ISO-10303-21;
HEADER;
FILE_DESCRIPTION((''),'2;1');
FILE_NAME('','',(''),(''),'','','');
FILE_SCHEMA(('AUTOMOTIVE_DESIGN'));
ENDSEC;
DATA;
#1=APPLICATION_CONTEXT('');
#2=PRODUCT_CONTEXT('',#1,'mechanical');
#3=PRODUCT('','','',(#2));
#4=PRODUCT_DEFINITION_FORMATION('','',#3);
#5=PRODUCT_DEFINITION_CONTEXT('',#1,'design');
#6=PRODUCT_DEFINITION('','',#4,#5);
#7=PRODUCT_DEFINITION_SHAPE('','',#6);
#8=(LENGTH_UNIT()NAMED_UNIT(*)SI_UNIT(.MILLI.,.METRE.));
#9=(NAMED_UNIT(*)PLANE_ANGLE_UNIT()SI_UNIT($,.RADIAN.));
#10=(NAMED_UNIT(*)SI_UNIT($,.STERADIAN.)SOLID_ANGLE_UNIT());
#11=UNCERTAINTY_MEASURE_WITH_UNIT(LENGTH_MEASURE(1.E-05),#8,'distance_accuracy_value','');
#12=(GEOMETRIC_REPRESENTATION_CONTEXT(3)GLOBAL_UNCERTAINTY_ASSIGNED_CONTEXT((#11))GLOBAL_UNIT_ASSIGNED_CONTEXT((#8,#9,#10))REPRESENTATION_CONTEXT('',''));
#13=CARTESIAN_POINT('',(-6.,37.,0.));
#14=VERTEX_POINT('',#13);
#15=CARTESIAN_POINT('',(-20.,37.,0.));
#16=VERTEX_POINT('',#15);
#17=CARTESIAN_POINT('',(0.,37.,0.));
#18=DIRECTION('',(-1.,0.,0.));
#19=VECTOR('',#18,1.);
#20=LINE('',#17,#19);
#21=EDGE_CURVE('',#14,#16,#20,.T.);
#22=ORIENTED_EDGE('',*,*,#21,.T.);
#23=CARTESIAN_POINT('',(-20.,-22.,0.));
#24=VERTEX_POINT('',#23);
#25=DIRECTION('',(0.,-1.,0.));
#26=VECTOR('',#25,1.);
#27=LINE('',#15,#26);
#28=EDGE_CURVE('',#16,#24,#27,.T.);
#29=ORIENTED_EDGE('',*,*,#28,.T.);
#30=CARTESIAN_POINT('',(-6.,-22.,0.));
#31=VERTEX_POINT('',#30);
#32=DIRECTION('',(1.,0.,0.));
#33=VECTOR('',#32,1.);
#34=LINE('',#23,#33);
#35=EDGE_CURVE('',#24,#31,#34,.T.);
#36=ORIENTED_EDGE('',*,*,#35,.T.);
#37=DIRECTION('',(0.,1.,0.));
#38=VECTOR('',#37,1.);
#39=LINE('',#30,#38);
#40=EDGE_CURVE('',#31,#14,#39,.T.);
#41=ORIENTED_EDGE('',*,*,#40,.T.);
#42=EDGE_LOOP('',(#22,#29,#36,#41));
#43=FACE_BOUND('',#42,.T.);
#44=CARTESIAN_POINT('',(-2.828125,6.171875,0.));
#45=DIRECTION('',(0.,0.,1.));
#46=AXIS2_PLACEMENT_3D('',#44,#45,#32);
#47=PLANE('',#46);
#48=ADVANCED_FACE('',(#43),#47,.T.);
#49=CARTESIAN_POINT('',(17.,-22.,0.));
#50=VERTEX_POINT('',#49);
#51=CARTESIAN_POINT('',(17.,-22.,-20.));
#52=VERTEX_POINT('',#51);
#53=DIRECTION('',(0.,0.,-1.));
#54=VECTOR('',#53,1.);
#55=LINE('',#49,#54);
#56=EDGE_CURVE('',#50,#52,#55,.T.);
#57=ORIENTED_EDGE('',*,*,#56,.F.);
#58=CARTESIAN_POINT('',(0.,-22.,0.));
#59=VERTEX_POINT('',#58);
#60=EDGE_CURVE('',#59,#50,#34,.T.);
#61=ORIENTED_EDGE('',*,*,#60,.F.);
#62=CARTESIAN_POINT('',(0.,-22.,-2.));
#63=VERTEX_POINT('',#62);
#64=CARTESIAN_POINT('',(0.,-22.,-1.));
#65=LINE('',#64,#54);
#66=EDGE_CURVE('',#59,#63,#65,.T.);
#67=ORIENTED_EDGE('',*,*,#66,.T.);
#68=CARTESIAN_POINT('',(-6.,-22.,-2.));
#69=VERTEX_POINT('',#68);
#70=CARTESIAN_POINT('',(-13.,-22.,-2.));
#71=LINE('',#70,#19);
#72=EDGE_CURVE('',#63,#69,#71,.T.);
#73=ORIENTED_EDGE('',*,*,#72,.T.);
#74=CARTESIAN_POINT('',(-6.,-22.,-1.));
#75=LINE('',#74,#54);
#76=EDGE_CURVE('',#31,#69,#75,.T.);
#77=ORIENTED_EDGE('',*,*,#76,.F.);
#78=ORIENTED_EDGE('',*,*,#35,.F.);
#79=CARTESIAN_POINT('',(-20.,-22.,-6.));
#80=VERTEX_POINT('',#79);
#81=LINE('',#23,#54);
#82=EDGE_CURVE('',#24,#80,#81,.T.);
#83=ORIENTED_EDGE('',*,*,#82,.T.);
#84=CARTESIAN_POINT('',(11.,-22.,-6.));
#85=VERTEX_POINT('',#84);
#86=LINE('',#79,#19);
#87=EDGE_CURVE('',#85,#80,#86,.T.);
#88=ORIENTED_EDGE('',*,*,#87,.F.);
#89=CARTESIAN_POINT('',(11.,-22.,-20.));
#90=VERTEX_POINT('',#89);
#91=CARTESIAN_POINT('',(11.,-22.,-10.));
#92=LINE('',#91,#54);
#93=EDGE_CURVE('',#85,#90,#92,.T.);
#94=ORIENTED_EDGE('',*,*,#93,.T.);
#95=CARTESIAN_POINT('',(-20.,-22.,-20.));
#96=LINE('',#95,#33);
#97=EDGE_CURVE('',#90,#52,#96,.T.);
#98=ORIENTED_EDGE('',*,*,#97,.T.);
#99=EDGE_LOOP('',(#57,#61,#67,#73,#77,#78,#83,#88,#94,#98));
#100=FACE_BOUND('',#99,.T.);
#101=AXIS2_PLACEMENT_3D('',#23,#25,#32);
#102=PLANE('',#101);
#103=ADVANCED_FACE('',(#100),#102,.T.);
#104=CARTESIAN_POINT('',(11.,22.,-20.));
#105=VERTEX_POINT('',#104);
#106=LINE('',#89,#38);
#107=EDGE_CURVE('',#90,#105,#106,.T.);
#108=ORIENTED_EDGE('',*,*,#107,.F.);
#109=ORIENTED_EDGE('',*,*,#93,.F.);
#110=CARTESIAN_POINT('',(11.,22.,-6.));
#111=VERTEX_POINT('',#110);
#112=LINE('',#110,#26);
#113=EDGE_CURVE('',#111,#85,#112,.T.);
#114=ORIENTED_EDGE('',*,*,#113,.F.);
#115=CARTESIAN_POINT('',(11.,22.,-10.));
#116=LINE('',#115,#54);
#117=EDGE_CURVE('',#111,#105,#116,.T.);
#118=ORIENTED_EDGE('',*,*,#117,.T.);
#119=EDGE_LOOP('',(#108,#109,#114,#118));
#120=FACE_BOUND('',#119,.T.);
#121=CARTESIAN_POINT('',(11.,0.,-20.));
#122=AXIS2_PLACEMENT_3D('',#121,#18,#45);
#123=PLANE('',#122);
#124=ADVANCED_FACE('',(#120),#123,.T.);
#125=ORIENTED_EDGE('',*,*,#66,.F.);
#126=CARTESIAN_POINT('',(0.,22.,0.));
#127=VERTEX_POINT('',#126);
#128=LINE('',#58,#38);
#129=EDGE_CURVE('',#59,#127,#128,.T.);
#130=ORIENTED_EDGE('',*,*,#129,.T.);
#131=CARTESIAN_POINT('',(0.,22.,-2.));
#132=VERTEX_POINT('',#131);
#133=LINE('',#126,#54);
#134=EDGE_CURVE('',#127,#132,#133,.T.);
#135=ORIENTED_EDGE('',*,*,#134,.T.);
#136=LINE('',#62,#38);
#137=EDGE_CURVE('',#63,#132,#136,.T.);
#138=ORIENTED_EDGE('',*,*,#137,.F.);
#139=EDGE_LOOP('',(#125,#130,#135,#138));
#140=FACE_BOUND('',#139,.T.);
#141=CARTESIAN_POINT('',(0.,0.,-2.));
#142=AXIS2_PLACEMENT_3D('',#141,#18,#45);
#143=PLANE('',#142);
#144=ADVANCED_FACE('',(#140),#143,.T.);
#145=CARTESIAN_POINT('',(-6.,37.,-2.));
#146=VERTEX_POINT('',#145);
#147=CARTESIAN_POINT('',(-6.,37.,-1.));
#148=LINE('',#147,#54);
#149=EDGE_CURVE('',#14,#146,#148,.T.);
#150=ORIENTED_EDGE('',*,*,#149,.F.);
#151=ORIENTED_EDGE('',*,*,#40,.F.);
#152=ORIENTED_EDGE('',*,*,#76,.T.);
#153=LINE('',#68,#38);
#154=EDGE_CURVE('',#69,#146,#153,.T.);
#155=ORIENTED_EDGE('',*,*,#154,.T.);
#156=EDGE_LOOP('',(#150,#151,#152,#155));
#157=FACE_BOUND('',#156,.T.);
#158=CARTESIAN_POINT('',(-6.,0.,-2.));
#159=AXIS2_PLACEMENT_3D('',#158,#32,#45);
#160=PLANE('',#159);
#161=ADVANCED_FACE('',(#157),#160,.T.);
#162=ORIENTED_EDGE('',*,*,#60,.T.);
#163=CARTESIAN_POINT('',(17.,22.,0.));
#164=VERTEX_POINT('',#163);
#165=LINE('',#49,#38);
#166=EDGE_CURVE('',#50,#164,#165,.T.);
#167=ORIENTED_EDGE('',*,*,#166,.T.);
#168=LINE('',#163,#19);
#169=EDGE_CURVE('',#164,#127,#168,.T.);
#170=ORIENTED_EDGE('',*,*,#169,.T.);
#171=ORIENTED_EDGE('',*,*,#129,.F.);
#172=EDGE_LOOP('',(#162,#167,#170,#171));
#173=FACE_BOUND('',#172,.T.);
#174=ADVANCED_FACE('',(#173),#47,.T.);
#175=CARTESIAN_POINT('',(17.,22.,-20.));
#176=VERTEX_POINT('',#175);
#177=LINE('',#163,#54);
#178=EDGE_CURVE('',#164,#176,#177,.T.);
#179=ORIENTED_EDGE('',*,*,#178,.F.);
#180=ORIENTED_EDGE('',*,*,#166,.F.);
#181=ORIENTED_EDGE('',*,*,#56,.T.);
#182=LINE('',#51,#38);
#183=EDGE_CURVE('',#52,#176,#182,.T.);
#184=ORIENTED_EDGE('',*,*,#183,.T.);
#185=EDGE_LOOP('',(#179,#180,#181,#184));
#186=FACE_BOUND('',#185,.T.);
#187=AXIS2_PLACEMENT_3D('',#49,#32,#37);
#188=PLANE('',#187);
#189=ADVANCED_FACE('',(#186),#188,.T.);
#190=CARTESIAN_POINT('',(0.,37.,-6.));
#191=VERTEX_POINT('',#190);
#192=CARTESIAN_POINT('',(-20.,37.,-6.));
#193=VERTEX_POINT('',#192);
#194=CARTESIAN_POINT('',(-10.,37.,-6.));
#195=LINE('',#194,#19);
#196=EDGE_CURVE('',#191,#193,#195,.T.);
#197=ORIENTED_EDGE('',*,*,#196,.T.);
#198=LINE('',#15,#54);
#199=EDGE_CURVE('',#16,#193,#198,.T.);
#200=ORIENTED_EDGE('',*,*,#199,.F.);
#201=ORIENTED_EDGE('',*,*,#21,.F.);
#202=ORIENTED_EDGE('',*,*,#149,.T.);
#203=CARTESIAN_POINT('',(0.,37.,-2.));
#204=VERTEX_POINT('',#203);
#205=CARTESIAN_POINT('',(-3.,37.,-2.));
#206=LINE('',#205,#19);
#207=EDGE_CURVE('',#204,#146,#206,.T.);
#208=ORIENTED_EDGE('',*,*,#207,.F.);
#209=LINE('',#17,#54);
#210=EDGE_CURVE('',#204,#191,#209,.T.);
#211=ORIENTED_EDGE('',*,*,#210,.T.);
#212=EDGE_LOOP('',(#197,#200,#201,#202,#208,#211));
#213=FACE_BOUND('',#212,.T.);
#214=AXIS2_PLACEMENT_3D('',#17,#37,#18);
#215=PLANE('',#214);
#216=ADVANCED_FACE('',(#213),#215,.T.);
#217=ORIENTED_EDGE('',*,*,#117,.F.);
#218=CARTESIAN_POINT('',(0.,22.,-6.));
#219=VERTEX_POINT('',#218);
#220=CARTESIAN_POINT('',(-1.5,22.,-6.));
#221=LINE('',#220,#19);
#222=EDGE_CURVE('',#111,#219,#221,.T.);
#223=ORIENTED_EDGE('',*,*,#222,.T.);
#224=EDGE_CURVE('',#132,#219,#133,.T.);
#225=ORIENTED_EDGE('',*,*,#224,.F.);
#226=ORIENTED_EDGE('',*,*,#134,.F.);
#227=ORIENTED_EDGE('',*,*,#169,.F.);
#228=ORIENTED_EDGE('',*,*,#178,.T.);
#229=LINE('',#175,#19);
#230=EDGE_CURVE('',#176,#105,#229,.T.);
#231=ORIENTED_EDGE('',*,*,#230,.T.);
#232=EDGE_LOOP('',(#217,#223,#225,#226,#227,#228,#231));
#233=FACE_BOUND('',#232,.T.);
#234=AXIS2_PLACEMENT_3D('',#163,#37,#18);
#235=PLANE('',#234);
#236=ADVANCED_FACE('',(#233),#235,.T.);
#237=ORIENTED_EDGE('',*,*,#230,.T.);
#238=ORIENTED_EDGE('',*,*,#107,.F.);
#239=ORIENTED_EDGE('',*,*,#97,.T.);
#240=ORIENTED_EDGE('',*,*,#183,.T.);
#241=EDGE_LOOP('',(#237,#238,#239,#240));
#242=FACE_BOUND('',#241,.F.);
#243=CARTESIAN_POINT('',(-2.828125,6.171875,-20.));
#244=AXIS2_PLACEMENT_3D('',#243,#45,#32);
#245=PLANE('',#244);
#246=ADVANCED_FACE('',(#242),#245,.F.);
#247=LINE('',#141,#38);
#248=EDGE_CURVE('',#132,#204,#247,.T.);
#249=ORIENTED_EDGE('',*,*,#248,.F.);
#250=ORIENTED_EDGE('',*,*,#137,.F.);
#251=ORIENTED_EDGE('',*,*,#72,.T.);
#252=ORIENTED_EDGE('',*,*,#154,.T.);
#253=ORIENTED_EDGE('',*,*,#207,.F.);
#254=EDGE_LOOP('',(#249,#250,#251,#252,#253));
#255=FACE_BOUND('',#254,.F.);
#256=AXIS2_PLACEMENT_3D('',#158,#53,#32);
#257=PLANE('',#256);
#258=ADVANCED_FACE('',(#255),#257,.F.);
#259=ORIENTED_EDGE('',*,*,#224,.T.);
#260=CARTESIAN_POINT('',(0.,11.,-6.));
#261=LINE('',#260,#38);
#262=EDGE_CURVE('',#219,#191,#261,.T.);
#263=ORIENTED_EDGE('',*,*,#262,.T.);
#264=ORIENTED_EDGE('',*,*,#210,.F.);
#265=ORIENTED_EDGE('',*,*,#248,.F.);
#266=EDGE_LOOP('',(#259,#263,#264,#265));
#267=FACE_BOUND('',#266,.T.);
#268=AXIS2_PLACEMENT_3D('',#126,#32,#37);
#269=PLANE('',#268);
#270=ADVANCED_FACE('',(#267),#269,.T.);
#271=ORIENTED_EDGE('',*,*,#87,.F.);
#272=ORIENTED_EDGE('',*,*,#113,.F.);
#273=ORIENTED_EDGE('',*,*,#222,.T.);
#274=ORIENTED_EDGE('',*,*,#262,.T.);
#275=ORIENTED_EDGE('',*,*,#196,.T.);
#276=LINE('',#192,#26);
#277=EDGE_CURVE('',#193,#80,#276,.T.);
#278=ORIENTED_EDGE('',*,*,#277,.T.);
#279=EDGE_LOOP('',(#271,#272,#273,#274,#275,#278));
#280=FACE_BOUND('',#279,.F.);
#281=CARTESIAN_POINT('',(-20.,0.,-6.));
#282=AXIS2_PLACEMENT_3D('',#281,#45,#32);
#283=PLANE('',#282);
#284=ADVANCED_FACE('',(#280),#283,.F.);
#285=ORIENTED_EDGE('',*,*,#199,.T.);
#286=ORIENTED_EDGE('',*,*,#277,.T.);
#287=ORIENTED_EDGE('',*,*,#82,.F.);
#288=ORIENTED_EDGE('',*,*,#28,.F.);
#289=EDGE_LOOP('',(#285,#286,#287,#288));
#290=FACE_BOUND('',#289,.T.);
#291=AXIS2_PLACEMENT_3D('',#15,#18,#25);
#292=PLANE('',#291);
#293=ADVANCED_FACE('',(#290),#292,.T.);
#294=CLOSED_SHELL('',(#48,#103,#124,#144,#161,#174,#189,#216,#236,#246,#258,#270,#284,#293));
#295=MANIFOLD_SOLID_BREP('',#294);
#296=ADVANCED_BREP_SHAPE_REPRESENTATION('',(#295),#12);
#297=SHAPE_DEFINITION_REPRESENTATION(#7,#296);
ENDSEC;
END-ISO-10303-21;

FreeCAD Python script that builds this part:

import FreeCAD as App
import Part
import Sketcher


def add_polygon(sketch, points):
    """Adds a closed chain of lines whose ends are joined by coincident constraints."""
    first, n = sketch.GeometryCount, len(points)
    for a, b in zip(points, points[1:] + points[:1]):
        sketch.addGeometry(Part.LineSegment(App.Vector(*a, 0), App.Vector(*b, 0)), False)
    for i in range(n):
        sketch.addConstraint(Sketcher.Constraint("Coincident", first + i, 2, first + (i + 1) % n, 1))

doc = App.newDocument("Part")
params = doc.addObject("Spreadsheet::Sheet", "Params")
for row, (alias, value) in enumerate([
    ("sketch1_width", "37 mm"),
    ("sketch1_width2", "17 mm"),
    ("sketch1_height", "59 mm"),
    ("sketch1_height2", "44 mm"),
    ("pad1_length", "20 mm"),
    ("sketch2_width", "31 mm"),
    ("sketch2_height", "14 mm"),
    ("sketch3_width", "6 mm"),
    ("sketch3_height", "2 mm"),
], start=1):
    params.set(f"A{row}", alias)
    params.set(f"B{row}", "=" + value)
    params.setAlias(f"B{row}", alias)

body = doc.addObject("PartDesign::Body", "Body")

sketch1 = doc.addObject("Sketcher::SketchObject", "Sketch")
body.addObject(sketch1)
sketch1.AttachmentSupport = (doc.XY_Plane, [""])
sketch1.MapMode = "FlatFace"
add_polygon(sketch1, [(-20, 37), (-20, -22), (17, -22), (17, 22), (0, 22), (0, 37)])
sketch1.addConstraint([
    Sketcher.Constraint("Vertical", 0),
    Sketcher.Constraint("Horizontal", 1),
    Sketcher.Constraint("Vertical", 2),
    Sketcher.Constraint("Horizontal", 3),
    Sketcher.Constraint("Vertical", 4),
    Sketcher.Constraint("Horizontal", 5),
    Sketcher.Constraint("PointOnObject", 3, 2, -2),
    Sketcher.Constraint("DistanceX", 1, 1, 1, 2, 37.0),
    Sketcher.Constraint("DistanceX", 3, 2, 3, 1, 17.0),
    Sketcher.Constraint("DistanceY", 0, 2, 0, 1, 59.0),
    Sketcher.Constraint("DistanceY", 2, 1, 2, 2, 44.0),
    Sketcher.Constraint("DistanceY", 0, 2, -1, 1, 22.0),
])
sketch1.setExpression("Constraints[13]", "Params.sketch1_width")
sketch1.setExpression("Constraints[14]", "Params.sketch1_width2")
sketch1.setExpression("Constraints[15]", "Params.sketch1_height")
sketch1.setExpression("Constraints[16]", "Params.sketch1_height2")
pad1 = doc.addObject("PartDesign::Pad", "Pad")
body.addObject(pad1)
pad1.Profile = sketch1
pad1.setExpression("Length", "Params.pad1_length")
pad1.Reversed = True

sketch2 = doc.addObject("Sketcher::SketchObject", "Sketch001")
body.addObject(sketch2)
sketch2.AttachmentSupport = (doc.XZ_Plane, [""])
sketch2.MapMode = "FlatFace"
add_polygon(sketch2, [(-20, -6), (-20, -20), (11, -20), (11, -6)])
sketch2.addConstraint([
    Sketcher.Constraint("Vertical", 0),
    Sketcher.Constraint("Horizontal", 1),
    Sketcher.Constraint("Vertical", 2),
    Sketcher.Constraint("Horizontal", 3),
    Sketcher.Constraint("DistanceX", 1, 1, 1, 2, 31.0),
    Sketcher.Constraint("DistanceY", 0, 2, 0, 1, 14.0),
    Sketcher.Constraint("DistanceX", 0, 2, -1, 1, 20.0),
    Sketcher.Constraint("DistanceY", 0, 2, -1, 1, 20.0),
])
sketch2.setExpression("Constraints[8]", "Params.sketch2_width")
sketch2.setExpression("Constraints[9]", "Params.sketch2_height")
pocket1 = doc.addObject("PartDesign::Pocket", "Pocket")
body.addObject(pocket1)
pocket1.Profile = sketch2
pocket1.Type = "ThroughAll"
pocket1.Midplane = True

sketch3 = doc.addObject("Sketcher::SketchObject", "Sketch002")
body.addObject(sketch3)
sketch3.AttachmentSupport = (doc.XZ_Plane, [""])
sketch3.MapMode = "FlatFace"
add_polygon(sketch3, [(-6, 0), (-6, -2), (0, -2), (0, 0)])
sketch3.addConstraint([
    Sketcher.Constraint("Vertical", 0),
    Sketcher.Constraint("Horizontal", 1),
    Sketcher.Constraint("Vertical", 2),
    Sketcher.Constraint("Horizontal", 3),
    Sketcher.Constraint("Coincident", 2, 2, -1, 1),
    Sketcher.Constraint("DistanceX", 1, 1, 1, 2, 6.0),
    Sketcher.Constraint("DistanceY", 0, 2, 0, 1, 2.0),
])
sketch3.setExpression("Constraints[9]", "Params.sketch3_width")
sketch3.setExpression("Constraints[10]", "Params.sketch3_height")
pocket2 = doc.addObject("PartDesign::Pocket", "Pocket001")
body.addObject(pocket2)
pocket2.Profile = sketch3
pocket2.Type = "ThroughAll"
pocket2.Midplane = True

doc.recompute()
